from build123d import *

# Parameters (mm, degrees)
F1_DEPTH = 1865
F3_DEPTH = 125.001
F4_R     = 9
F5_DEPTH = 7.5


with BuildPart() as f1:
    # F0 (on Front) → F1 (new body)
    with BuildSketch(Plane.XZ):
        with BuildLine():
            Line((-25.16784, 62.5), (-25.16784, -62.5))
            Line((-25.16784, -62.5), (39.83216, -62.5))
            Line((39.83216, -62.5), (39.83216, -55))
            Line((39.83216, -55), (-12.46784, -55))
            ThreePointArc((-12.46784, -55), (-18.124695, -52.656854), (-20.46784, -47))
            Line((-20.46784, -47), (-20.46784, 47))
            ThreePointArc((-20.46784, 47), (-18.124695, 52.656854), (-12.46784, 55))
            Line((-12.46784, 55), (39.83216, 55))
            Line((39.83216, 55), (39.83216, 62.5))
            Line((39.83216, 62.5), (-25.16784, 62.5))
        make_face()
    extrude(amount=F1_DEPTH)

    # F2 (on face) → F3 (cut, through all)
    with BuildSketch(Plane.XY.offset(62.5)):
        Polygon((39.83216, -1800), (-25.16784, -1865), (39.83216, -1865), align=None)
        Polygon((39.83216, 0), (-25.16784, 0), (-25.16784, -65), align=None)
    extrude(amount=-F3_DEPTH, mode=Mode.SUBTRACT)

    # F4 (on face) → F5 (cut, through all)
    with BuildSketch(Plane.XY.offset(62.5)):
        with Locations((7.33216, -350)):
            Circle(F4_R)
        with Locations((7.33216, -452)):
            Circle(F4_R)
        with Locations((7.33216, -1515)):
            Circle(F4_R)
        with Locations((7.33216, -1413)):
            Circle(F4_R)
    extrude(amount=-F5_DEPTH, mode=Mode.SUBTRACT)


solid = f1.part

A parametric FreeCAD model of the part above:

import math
import FreeCAD as App
import Part
import Sketcher

V = App.Vector
Q = App.Units.Quantity

doc = App.newDocument("Part")
params = doc.addObject("Spreadsheet::Sheet", "Params")
for row, (alias, value) in enumerate([
    ("sketch1_radius", "7.999999 mm"),
    ("sketch1_width", "65 mm"),
    ("sketch1_height", "125 mm"),
    ("sketch1_height2", "94 mm"),
    ("sketch1_width2", "52.3 mm"),
    ("pad1_length", "1865 mm"),
    ("sketch2_width", "65 mm"),
    ("sketch3_diameter", "18 mm"),
    ("pocket2_length", "7.5 mm"),
], start=1):
    params.set(f"A{row}", alias)
    params.set(f"B{row}", "=" + value)
    params.setAlias(f"B{row}", alias)

body = doc.addObject("PartDesign::Body", "Body")

# Sketch on XZ plane
sketch1 = doc.addObject("Sketcher::SketchObject", "Sketch")
body.addObject(sketch1)
sketch1.AttachmentSupport = (doc.XZ_Plane, [""])
sketch1.MapMode = "FlatFace"
sketch1.addGeometry(Part.LineSegment(V(-25, 62, 0), V(-25, -62, 0)), False)
sketch1.addGeometry(Part.LineSegment(V(-25, -62, 0), V(40, -62, 0)), False)
sketch1.addGeometry(Part.LineSegment(V(40, -62, 0), V(40, -55, 0)), False)
sketch1.addGeometry(Part.LineSegment(V(40, -55, 0), V(-12, -55, 0)), False)
sketch1.addGeometry(Part.ArcOfCircle(Part.Circle(V(-12, -47, 0), V(0, 0, 1), 8), math.radians(180), math.radians(270)), False)
sketch1.addGeometry(Part.LineSegment(V(-20, -47, 0), V(-20, 47, 0)), False)
sketch1.addGeometry(Part.ArcOfCircle(Part.Circle(V(-12, 47, 0), V(0, 0, 1), 8), math.radians(90), math.radians(180)), False)
sketch1.addGeometry(Part.LineSegment(V(-12, 55, 0), V(40, 55, 0)), False)
sketch1.addGeometry(Part.LineSegment(V(40, 55, 0), V(40, 62, 0)), False)
sketch1.addGeometry(Part.LineSegment(V(40, 62, 0), V(-25, 62, 0)), False)
sketch1.addConstraint(Sketcher.Constraint("Coincident", 0, 2, 1, 1))
sketch1.addConstraint(Sketcher.Constraint("Coincident", 1, 2, 2, 1))
sketch1.addConstraint(Sketcher.Constraint("Coincident", 2, 2, 3, 1))
sketch1.addConstraint(Sketcher.Constraint("Tangent", 3, 2, 4, 2))
sketch1.addConstraint(Sketcher.Constraint("Tangent", 4, 1, 5, 1))
sketch1.addConstraint(Sketcher.Constraint("Tangent", 5, 2, 6, 2))
sketch1.addConstraint(Sketcher.Constraint("Tangent", 6, 1, 7, 1))
sketch1.addConstraint(Sketcher.Constraint("Coincident", 7, 2, 8, 1))
sketch1.addConstraint(Sketcher.Constraint("Coincident", 8, 2, 9, 1))
sketch1.addConstraint(Sketcher.Constraint("Coincident", 9, 2, 0, 1))
sketch1.addConstraint(Sketcher.Constraint("Vertical", 0))
sketch1.addConstraint(Sketcher.Constraint("Horizontal", 1))
sketch1.addConstraint(Sketcher.Constraint("Vertical", 2))
sketch1.addConstraint(Sketcher.Constraint("Horizontal", 3))
sketch1.addConstraint(Sketcher.Constraint("Vertical", 5))
sketch1.addConstraint(Sketcher.Constraint("Horizontal", 7))
sketch1.addConstraint(Sketcher.Constraint("Vertical", 8))
sketch1.addConstraint(Sketcher.Constraint("Horizontal", 9))
sketch1.addConstraint(Sketcher.Constraint("Equal", 4, 6))
sketch1.addConstraint(Sketcher.Constraint("Symmetric", 2, 2, 7, 2, -1))
sketch1.addConstraint(Sketcher.Constraint("Equal", 2, 8))
sketch1.addConstraint(Sketcher.Constraint("Radius", 4, Q("7.999999 mm")))
sketch1.addConstraint(Sketcher.Constraint("DistanceX", 1, 1, 1, 2, Q("65 mm")))
sketch1.addConstraint(Sketcher.Constraint("DistanceY", 0, 2, 0, 1, Q("125 mm")))
sketch1.addConstraint(Sketcher.Constraint("DistanceY", 5, 1, 5, 2, Q("94 mm")))
sketch1.addConstraint(Sketcher.Constraint("DistanceX", 3, 2, 3, 1, Q("52.3 mm")))
sketch1.addConstraint(Sketcher.Constraint("DistanceX", 4, 3, -1, 1, Q("12.467841 mm")))
sketch1.setExpression("Constraints[21]", "Params.sketch1_radius")
sketch1.setExpression("Constraints[22]", "Params.sketch1_width")
sketch1.setExpression("Constraints[23]", "Params.sketch1_height")
sketch1.setExpression("Constraints[24]", "Params.sketch1_height2")
sketch1.setExpression("Constraints[25]", "Params.sketch1_width2")
pad1 = doc.addObject("PartDesign::Pad", "Pad")
body.addObject(pad1)
pad1.Profile = sketch1
pad1.setExpression("Length", "Params.pad1_length")

# Sketch on XY plane
sketch2 = doc.addObject("Sketcher::SketchObject", "Sketch001")
body.addObject(sketch2)
sketch2.AttachmentSupport = (doc.XY_Plane, [""])
sketch2.MapMode = "FlatFace"
sketch2.AttachmentOffset = App.Placement(V(0, 0, 62.5), App.Rotation())
sketch2.addGeometry(Part.LineSegment(V(40, -1800, 0), V(-25, -1865, 0)), False)
sketch2.addGeometry(Part.LineSegment(V(-25, -1865, 0), V(40, -1865, 0)), False)
sketch2.addGeometry(Part.LineSegment(V(40, -1865, 0), V(40, -1800, 0)), False)
sketch2.addGeometry(Part.LineSegment(V(40, 0, 0), V(-25, 0, 0)), False)
sketch2.addGeometry(Part.LineSegment(V(-25, 0, 0), V(-25, -65, 0)), False)
sketch2.addGeometry(Part.LineSegment(V(-25, -65, 0), V(40, 0, 0)), False)
sketch2.addConstraint(Sketcher.Constraint("Coincident", 0, 2, 1, 1))
sketch2.addConstraint(Sketcher.Constraint("Coincident", 1, 2, 2, 1))
sketch2.addConstraint(Sketcher.Constraint("Coincident", 2, 2, 0, 1))
sketch2.addConstraint(Sketcher.Constraint("Coincident", 3, 2, 4, 1))
sketch2.addConstraint(Sketcher.Constraint("Coincident", 4, 2, 5, 1))
sketch2.addConstraint(Sketcher.Constraint("Coincident", 5, 2, 3, 1))
sketch2.addConstraint(Sketcher.Constraint("Horizontal", 1))
sketch2.addConstraint(Sketcher.Constraint("Vertical", 2))
sketch2.addConstraint(Sketcher.Constraint("Horizontal", 3))
sketch2.addConstraint(Sketcher.Constraint("Vertical", 4))
sketch2.addConstraint(Sketcher.Constraint("PointOnObject", 3, 2, -1))
sketch2.addConstraint(Sketcher.Constraint("Parallel", 0, 5))
sketch2.addConstraint(Sketcher.Constraint("Vertical", 0, 2, 3, 2))
sketch2.addConstraint(Sketcher.Constraint("Vertical", 2, 2, 5, 2))
sketch2.addConstraint(Sketcher.Constraint("Equal", 3, 2))
sketch2.addConstraint(Sketcher.Constraint("DistanceX", 1, 1, 1, 2, Q("65 mm")))
sketch2.addConstraint(Sketcher.Constraint("DistanceY", 0, 2, -1, 1, Q("1865 mm")))
sketch2.addConstraint(Sketcher.Constraint("DistanceX", 0, 2, -1, 1, Q("25.16784 mm")))
sketch2.setExpression("Constraints[15]", "Params.sketch2_width")
pocket1 = doc.addObject("PartDesign::Pocket", "Pocket")
body.addObject(pocket1)
pocket1.Profile = sketch2
pocket1.Type = "ThroughAll"

# Sketch on XY plane
sketch3 = doc.addObject("Sketcher::SketchObject", "Sketch002")
body.addObject(sketch3)
sketch3.AttachmentSupport = (doc.XY_Plane, [""])
sketch3.MapMode = "FlatFace"
sketch3.AttachmentOffset = App.Placement(V(0, 0, 62.5), App.Rotation())
sketch3.addGeometry(Part.Circle(V(7, -350, 0), V(0, 0, 1), 9), False)
sketch3.addGeometry(Part.Circle(V(7, -452, 0), V(0, 0, 1), 9), False)
sketch3.addGeometry(Part.Circle(V(7, -1515, 0), V(0, 0, 1), 9), False)
sketch3.addGeometry(Part.Circle(V(7, -1413, 0), V(0, 0, 1), 9), False)
sketch3.addConstraint(Sketcher.Constraint("Equal", 0, 1))
sketch3.addConstraint(Sketcher.Constraint("Equal", 1, 2))
sketch3.addConstraint(Sketcher.Constraint("Equal", 2, 3))
sketch3.addConstraint(Sketcher.Constraint("Vertical", 0, 3, 1, 3))
sketch3.addConstraint(Sketcher.Constraint("Vertical", 1, 3, 2, 3))
sketch3.addConstraint(Sketcher.Constraint("Vertical", 2, 3, 3, 3))
sketch3.addConstraint(Sketcher.Constraint("Diameter", 0, Q("18 mm")))
sketch3.addConstraint(Sketcher.Constraint("DistanceY", 0, 3, -1, 1, Q("350 mm")))
sketch3.addConstraint(Sketcher.Constraint("DistanceY", 1, 3, -1, 1, Q("452 mm")))
sketch3.addConstraint(Sketcher.Constraint("DistanceY", 2, 3, -1, 1, Q("1515 mm")))
sketch3.addConstraint(Sketcher.Constraint("DistanceY", 3, 3, -1, 1, Q("1413 mm")))
sketch3.addConstraint(Sketcher.Constraint("DistanceX", -1, 1, 0, 3, Q("7.33216 mm")))
sketch3.setExpression("Constraints[6]", "Params.sketch3_diameter")
pocket2 = doc.addObject("PartDesign::Pocket", "Pocket001")
body.addObject(pocket2)
pocket2.Profile = sketch3
pocket2.setExpression("Length", "Params.pocket2_length")

doc.recompute()
